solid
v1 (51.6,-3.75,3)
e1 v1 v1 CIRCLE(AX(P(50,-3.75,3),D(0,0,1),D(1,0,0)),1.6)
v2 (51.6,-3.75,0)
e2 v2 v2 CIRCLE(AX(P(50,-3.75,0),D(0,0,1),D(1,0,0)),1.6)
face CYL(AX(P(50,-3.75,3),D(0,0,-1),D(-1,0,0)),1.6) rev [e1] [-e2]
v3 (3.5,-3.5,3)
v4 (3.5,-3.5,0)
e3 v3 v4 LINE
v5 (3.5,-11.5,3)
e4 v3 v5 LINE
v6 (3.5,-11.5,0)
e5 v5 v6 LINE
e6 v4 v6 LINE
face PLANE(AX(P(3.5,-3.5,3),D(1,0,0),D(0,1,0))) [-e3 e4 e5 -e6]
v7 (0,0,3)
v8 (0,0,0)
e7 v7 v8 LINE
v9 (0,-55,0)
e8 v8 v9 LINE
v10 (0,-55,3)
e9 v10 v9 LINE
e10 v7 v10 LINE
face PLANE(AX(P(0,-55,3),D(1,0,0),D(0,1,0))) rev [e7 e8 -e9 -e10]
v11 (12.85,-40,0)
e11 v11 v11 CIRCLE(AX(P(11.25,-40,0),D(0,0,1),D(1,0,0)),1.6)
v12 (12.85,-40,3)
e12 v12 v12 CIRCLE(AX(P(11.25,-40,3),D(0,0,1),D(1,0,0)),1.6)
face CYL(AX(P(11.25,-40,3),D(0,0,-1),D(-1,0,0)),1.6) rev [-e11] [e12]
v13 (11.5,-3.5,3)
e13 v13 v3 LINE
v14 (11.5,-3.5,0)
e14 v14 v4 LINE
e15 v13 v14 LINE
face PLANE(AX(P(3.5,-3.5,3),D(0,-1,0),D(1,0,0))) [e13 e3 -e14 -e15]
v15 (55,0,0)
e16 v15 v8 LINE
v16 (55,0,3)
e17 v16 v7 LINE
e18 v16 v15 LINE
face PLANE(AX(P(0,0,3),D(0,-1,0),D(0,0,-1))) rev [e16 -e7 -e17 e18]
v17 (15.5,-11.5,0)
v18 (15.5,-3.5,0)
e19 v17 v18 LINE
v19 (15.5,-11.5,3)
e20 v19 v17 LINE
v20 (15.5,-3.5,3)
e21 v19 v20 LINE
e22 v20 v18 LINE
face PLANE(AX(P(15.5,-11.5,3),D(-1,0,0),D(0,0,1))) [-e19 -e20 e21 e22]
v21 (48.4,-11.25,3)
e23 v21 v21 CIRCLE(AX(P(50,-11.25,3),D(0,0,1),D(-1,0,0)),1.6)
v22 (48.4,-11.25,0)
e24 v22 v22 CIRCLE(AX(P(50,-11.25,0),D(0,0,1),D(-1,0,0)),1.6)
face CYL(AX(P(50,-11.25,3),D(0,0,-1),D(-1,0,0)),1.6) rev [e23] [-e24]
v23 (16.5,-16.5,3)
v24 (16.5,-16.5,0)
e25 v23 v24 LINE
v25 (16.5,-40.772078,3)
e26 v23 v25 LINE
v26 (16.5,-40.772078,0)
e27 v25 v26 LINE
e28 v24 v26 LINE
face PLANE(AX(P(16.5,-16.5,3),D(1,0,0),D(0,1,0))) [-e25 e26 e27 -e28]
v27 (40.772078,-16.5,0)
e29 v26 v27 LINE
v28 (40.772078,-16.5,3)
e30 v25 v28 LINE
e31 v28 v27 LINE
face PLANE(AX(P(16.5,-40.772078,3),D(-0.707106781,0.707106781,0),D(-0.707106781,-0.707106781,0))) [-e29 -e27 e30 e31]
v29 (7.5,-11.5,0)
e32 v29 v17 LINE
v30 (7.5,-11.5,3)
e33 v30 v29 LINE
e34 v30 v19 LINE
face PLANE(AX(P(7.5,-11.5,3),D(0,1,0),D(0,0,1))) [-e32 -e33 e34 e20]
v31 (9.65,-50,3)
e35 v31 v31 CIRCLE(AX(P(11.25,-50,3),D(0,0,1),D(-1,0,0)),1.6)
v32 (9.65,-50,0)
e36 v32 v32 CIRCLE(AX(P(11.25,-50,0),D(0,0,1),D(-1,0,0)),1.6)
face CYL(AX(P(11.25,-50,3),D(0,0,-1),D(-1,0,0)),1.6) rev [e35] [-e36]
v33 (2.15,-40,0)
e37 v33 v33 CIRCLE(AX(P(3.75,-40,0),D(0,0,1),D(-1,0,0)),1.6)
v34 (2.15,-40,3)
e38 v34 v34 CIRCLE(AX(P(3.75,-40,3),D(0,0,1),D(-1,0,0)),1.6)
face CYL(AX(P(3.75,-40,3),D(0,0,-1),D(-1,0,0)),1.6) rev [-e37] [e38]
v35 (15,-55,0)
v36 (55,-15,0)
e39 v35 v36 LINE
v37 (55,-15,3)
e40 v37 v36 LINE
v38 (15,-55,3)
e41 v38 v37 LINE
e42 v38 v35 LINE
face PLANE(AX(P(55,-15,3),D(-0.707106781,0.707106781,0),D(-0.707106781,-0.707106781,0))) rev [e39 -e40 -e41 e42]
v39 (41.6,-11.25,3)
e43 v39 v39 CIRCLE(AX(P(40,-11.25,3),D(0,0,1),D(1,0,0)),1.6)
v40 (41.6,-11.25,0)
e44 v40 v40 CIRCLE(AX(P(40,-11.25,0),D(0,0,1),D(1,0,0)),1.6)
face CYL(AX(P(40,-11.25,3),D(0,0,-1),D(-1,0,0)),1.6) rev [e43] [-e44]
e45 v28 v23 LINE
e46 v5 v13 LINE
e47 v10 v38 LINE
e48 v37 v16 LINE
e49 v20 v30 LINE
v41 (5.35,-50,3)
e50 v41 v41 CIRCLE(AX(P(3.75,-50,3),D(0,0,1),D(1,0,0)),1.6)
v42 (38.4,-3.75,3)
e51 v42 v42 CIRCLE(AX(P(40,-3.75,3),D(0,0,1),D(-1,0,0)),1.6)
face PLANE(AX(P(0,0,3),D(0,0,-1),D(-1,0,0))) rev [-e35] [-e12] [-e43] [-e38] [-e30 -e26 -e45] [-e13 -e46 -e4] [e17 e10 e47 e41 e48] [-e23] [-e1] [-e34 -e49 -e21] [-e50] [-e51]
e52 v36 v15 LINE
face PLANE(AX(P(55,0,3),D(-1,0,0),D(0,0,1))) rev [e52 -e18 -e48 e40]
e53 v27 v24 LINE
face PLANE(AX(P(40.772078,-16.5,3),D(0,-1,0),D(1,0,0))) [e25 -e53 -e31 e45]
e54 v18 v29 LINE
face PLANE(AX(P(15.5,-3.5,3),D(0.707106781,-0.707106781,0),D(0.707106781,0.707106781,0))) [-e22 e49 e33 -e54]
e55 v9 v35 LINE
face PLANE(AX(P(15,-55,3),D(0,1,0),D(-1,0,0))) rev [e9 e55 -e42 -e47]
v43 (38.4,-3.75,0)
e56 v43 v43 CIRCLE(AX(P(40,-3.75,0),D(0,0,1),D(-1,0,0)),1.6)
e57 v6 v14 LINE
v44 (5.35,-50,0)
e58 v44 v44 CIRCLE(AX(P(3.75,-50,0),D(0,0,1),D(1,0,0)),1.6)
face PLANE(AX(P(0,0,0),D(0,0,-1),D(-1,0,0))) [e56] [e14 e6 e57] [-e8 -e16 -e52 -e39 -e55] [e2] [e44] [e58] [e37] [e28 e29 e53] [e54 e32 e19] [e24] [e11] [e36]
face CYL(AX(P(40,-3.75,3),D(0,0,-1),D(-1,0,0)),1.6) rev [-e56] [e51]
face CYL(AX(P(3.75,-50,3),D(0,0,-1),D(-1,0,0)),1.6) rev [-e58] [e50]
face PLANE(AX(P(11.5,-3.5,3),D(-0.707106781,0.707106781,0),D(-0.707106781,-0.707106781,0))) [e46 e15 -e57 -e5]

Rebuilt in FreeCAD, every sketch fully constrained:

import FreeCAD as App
import Part
import Sketcher
from FreeCAD import Vector
Q = App.Units.Quantity


def add_polygon(sketch, points):
    """Adds a closed chain of lines whose ends are joined by coincident constraints."""
    first, n = sketch.GeometryCount, len(points)
    for a, b in zip(points, points[1:] + points[:1]):
        sketch.addGeometry(Part.LineSegment(App.Vector(*a, 0), App.Vector(*b, 0)), False)
    for i in range(n):
        sketch.addConstraint(Sketcher.Constraint("Coincident", first + i, 2, first + (i + 1) % n, 1))

doc = App.newDocument("Part")
params = doc.addObject("Spreadsheet::Sheet", "Params")
for row, (alias, value) in enumerate([
    ("sketch1_diameter", "3.2 mm"),
    ("sketch1_width", "55 mm"),
    ("sketch1_width2", "15 mm"),
    ("sketch1_width3", "8 mm"),
    ("pad1_length", "3 mm"),
], start=1):
    params.set(f"A{row}", alias)
    params.set(f"B{row}", "=" + value)
    params.setAlias(f"B{row}", alias)

body = doc.addObject("PartDesign::Body", "Body")

sketch1 = body.newObject("Sketcher::SketchObject", "Sketch")
sketch1.AttachmentSupport = (doc.getObject("XY_Plane"), [""])
sketch1.MapMode = "FlatFace"
add_polygon(sketch1, [(55, 0), (0, 0), (0, -55), (15, -55), (55, -15)])
add_polygon(sketch1, [(16.5, -16.5), (40.772078, -16.5), (16.5, -40.772078)])
sketch1.addGeometry(Part.Circle(Vector(11.25, -50, 0), Vector(0, 0, 1), 1.6), False)
sketch1.addGeometry(Part.Circle(Vector(3.75, -50, 0), Vector(0, 0, 1), 1.6), False)
sketch1.addGeometry(Part.Circle(Vector(11.25, -40, 0), Vector(0, 0, 1), 1.6), False)
sketch1.addGeometry(Part.Circle(Vector(3.75, -40, 0), Vector(0, 0, 1), 1.6), False)
sketch1.addGeometry(Part.Circle(Vector(50, -11.25, 0), Vector(0, 0, 1), 1.6), False)
sketch1.addGeometry(Part.Circle(Vector(40, -11.25, 0), Vector(0, 0, 1), 1.6), False)
sketch1.addGeometry(Part.Circle(Vector(50, -3.75, 0), Vector(0, 0, 1), 1.6), False)
sketch1.addGeometry(Part.Circle(Vector(40, -3.75, 0), Vector(0, 0, 1), 1.6), False)
add_polygon(sketch1, [(15.5, -3.5), (15.5, -11.5), (7.5, -11.5)])
add_polygon(sketch1, [(3.5, -3.5), (11.5, -3.5), (3.5, -11.5)])
sketch1.addConstraint(Sketcher.Constraint("Horizontal", 0))
sketch1.addConstraint(Sketcher.Constraint("Vertical", 1))
sketch1.addConstraint(Sketcher.Constraint("Horizontal", 2))
sketch1.addConstraint(Sketcher.Constraint("Vertical", 4))
sketch1.addConstraint(Sketcher.Constraint("Horizontal", 5))
sketch1.addConstraint(Sketcher.Constraint("Vertical", 7))
sketch1.addConstraint(Sketcher.Constraint("Vertical", 16))
sketch1.addConstraint(Sketcher.Constraint("Horizontal", 17))
sketch1.addConstraint(Sketcher.Constraint("Horizontal", 19))
sketch1.addConstraint(Sketcher.Constraint("Vertical", 21))
sketch1.addConstraint(Sketcher.Constraint("Coincident", 0, 2, -1, 1))
sketch1.addConstraint(Sketcher.Constraint("Equal", 8, 9))
sketch1.addConstraint(Sketcher.Constraint("Equal", 9, 10))
sketch1.addConstraint(Sketcher.Constraint("Equal", 10, 11))
sketch1.addConstraint(Sketcher.Constraint("Equal", 11, 12))
sketch1.addConstraint(Sketcher.Constraint("Equal", 12, 13))
sketch1.addConstraint(Sketcher.Constraint("Equal", 13, 14))
sketch1.addConstraint(Sketcher.Constraint("Equal", 14, 15))
sketch1.addConstraint(Sketcher.Constraint("Parallel", 3, 6))
sketch1.addConstraint(Sketcher.Constraint("Parallel", 6, 18))
sketch1.addConstraint(Sketcher.Constraint("Parallel", 18, 20))
sketch1.addConstraint(Sketcher.Constraint("Horizontal", 8, 3, 9, 3))
sketch1.addConstraint(Sketcher.Constraint("Horizontal", 10, 3, 11, 3))
sketch1.addConstraint(Sketcher.Constraint("Horizontal", 12, 3, 13, 3))
sketch1.addConstraint(Sketcher.Constraint("Horizontal", 14, 3, 15, 3))
sketch1.addConstraint(Sketcher.Constraint("Horizontal", 18, 2, 19, 2))
sketch1.addConstraint(Sketcher.Constraint("Horizontal", 17, 2, 20, 2))
sketch1.addConstraint(Sketcher.Constraint("Vertical", 8, 3, 10, 3))
sketch1.addConstraint(Sketcher.Constraint("Vertical", 9, 3, 11, 3))
sketch1.addConstraint(Sketcher.Constraint("Vertical", 12, 3, 14, 3))
sketch1.addConstraint(Sketcher.Constraint("Vertical", 13, 3, 15, 3))
sketch1.addConstraint(Sketcher.Constraint("Equal", 0, 1))
sketch1.addConstraint(Sketcher.Constraint("Equal", 2, 4))
sketch1.addConstraint(Sketcher.Constraint("Diameter", 8, Q("3.2 mm")))
sketch1.addConstraint(Sketcher.Constraint("DistanceX", 0, 2, 0, 1, Q("55 mm")))
sketch1.addConstraint(Sketcher.Constraint("DistanceX", 2, 1, 2, 2, Q("15 mm")))
sketch1.addConstraint(Sketcher.Constraint("DistanceX", 17, 2, 17, 1, Q("8 mm")))
sketch1.addConstraint(Sketcher.Constraint("DistanceY", 8, 3, -1, 1, Q("50 mm")))
sketch1.addConstraint(Sketcher.Constraint("DistanceY", 10, 3, -1, 1, Q("40 mm")))
sketch1.addConstraint(Sketcher.Constraint("DistanceX", -1, 1, 12, 3, Q("50 mm")))
sketch1.addConstraint(Sketcher.Constraint("DistanceX", -1, 1, 13, 3, Q("40 mm")))
sketch1.addConstraint(Sketcher.Constraint("DistanceX", 16, 2, 7, 2, Q("1 mm")))
sketch1.addConstraint(Sketcher.Constraint("DistanceY", 7, 2, 16, 2, Q("5 mm")))
sketch1.addConstraint(Sketcher.Constraint("DistanceX", 19, 2, 18, 2, Q("4 mm")))
sketch1.addConstraint(Sketcher.Constraint("DistanceY", 5, 2, -1, 1, Q("16.5 mm")))
sketch1.addConstraint(Sketcher.Constraint("DistanceX", -1, 1, 6, 2, Q("16.5 mm")))
sketch1.addConstraint(Sketcher.Constraint("DistanceX", 9, 3, 8, 3, Q("7.5 mm")))
sketch1.addConstraint(Sketcher.Constraint("DistanceY", 12, 3, 14, 3, Q("7.5 mm")))
sketch1.addConstraint(Sketcher.Constraint("DistanceX", -1, 1, 8, 3, Q("11.25 mm")))
sketch1.addConstraint(Sketcher.Constraint("DistanceY", 12, 3, -1, 1, Q("11.25 mm")))
sketch1.addConstraint(Sketcher.Constraint("Distance", 6, Q("34.325902 mm")))
sketch1.setExpression("Constraints[47]", "Params.sketch1_diameter")
sketch1.setExpression("Constraints[48]", "Params.sketch1_width")
sketch1.setExpression("Constraints[49]", "Params.sketch1_width2")
sketch1.setExpression("Constraints[50]", "Params.sketch1_width3")
pad1 = body.newObject("PartDesign::Pad", "Pad")
pad1.Profile = sketch1
pad1.setExpression("Length", "Params.pad1_length")

doc.recompute()
